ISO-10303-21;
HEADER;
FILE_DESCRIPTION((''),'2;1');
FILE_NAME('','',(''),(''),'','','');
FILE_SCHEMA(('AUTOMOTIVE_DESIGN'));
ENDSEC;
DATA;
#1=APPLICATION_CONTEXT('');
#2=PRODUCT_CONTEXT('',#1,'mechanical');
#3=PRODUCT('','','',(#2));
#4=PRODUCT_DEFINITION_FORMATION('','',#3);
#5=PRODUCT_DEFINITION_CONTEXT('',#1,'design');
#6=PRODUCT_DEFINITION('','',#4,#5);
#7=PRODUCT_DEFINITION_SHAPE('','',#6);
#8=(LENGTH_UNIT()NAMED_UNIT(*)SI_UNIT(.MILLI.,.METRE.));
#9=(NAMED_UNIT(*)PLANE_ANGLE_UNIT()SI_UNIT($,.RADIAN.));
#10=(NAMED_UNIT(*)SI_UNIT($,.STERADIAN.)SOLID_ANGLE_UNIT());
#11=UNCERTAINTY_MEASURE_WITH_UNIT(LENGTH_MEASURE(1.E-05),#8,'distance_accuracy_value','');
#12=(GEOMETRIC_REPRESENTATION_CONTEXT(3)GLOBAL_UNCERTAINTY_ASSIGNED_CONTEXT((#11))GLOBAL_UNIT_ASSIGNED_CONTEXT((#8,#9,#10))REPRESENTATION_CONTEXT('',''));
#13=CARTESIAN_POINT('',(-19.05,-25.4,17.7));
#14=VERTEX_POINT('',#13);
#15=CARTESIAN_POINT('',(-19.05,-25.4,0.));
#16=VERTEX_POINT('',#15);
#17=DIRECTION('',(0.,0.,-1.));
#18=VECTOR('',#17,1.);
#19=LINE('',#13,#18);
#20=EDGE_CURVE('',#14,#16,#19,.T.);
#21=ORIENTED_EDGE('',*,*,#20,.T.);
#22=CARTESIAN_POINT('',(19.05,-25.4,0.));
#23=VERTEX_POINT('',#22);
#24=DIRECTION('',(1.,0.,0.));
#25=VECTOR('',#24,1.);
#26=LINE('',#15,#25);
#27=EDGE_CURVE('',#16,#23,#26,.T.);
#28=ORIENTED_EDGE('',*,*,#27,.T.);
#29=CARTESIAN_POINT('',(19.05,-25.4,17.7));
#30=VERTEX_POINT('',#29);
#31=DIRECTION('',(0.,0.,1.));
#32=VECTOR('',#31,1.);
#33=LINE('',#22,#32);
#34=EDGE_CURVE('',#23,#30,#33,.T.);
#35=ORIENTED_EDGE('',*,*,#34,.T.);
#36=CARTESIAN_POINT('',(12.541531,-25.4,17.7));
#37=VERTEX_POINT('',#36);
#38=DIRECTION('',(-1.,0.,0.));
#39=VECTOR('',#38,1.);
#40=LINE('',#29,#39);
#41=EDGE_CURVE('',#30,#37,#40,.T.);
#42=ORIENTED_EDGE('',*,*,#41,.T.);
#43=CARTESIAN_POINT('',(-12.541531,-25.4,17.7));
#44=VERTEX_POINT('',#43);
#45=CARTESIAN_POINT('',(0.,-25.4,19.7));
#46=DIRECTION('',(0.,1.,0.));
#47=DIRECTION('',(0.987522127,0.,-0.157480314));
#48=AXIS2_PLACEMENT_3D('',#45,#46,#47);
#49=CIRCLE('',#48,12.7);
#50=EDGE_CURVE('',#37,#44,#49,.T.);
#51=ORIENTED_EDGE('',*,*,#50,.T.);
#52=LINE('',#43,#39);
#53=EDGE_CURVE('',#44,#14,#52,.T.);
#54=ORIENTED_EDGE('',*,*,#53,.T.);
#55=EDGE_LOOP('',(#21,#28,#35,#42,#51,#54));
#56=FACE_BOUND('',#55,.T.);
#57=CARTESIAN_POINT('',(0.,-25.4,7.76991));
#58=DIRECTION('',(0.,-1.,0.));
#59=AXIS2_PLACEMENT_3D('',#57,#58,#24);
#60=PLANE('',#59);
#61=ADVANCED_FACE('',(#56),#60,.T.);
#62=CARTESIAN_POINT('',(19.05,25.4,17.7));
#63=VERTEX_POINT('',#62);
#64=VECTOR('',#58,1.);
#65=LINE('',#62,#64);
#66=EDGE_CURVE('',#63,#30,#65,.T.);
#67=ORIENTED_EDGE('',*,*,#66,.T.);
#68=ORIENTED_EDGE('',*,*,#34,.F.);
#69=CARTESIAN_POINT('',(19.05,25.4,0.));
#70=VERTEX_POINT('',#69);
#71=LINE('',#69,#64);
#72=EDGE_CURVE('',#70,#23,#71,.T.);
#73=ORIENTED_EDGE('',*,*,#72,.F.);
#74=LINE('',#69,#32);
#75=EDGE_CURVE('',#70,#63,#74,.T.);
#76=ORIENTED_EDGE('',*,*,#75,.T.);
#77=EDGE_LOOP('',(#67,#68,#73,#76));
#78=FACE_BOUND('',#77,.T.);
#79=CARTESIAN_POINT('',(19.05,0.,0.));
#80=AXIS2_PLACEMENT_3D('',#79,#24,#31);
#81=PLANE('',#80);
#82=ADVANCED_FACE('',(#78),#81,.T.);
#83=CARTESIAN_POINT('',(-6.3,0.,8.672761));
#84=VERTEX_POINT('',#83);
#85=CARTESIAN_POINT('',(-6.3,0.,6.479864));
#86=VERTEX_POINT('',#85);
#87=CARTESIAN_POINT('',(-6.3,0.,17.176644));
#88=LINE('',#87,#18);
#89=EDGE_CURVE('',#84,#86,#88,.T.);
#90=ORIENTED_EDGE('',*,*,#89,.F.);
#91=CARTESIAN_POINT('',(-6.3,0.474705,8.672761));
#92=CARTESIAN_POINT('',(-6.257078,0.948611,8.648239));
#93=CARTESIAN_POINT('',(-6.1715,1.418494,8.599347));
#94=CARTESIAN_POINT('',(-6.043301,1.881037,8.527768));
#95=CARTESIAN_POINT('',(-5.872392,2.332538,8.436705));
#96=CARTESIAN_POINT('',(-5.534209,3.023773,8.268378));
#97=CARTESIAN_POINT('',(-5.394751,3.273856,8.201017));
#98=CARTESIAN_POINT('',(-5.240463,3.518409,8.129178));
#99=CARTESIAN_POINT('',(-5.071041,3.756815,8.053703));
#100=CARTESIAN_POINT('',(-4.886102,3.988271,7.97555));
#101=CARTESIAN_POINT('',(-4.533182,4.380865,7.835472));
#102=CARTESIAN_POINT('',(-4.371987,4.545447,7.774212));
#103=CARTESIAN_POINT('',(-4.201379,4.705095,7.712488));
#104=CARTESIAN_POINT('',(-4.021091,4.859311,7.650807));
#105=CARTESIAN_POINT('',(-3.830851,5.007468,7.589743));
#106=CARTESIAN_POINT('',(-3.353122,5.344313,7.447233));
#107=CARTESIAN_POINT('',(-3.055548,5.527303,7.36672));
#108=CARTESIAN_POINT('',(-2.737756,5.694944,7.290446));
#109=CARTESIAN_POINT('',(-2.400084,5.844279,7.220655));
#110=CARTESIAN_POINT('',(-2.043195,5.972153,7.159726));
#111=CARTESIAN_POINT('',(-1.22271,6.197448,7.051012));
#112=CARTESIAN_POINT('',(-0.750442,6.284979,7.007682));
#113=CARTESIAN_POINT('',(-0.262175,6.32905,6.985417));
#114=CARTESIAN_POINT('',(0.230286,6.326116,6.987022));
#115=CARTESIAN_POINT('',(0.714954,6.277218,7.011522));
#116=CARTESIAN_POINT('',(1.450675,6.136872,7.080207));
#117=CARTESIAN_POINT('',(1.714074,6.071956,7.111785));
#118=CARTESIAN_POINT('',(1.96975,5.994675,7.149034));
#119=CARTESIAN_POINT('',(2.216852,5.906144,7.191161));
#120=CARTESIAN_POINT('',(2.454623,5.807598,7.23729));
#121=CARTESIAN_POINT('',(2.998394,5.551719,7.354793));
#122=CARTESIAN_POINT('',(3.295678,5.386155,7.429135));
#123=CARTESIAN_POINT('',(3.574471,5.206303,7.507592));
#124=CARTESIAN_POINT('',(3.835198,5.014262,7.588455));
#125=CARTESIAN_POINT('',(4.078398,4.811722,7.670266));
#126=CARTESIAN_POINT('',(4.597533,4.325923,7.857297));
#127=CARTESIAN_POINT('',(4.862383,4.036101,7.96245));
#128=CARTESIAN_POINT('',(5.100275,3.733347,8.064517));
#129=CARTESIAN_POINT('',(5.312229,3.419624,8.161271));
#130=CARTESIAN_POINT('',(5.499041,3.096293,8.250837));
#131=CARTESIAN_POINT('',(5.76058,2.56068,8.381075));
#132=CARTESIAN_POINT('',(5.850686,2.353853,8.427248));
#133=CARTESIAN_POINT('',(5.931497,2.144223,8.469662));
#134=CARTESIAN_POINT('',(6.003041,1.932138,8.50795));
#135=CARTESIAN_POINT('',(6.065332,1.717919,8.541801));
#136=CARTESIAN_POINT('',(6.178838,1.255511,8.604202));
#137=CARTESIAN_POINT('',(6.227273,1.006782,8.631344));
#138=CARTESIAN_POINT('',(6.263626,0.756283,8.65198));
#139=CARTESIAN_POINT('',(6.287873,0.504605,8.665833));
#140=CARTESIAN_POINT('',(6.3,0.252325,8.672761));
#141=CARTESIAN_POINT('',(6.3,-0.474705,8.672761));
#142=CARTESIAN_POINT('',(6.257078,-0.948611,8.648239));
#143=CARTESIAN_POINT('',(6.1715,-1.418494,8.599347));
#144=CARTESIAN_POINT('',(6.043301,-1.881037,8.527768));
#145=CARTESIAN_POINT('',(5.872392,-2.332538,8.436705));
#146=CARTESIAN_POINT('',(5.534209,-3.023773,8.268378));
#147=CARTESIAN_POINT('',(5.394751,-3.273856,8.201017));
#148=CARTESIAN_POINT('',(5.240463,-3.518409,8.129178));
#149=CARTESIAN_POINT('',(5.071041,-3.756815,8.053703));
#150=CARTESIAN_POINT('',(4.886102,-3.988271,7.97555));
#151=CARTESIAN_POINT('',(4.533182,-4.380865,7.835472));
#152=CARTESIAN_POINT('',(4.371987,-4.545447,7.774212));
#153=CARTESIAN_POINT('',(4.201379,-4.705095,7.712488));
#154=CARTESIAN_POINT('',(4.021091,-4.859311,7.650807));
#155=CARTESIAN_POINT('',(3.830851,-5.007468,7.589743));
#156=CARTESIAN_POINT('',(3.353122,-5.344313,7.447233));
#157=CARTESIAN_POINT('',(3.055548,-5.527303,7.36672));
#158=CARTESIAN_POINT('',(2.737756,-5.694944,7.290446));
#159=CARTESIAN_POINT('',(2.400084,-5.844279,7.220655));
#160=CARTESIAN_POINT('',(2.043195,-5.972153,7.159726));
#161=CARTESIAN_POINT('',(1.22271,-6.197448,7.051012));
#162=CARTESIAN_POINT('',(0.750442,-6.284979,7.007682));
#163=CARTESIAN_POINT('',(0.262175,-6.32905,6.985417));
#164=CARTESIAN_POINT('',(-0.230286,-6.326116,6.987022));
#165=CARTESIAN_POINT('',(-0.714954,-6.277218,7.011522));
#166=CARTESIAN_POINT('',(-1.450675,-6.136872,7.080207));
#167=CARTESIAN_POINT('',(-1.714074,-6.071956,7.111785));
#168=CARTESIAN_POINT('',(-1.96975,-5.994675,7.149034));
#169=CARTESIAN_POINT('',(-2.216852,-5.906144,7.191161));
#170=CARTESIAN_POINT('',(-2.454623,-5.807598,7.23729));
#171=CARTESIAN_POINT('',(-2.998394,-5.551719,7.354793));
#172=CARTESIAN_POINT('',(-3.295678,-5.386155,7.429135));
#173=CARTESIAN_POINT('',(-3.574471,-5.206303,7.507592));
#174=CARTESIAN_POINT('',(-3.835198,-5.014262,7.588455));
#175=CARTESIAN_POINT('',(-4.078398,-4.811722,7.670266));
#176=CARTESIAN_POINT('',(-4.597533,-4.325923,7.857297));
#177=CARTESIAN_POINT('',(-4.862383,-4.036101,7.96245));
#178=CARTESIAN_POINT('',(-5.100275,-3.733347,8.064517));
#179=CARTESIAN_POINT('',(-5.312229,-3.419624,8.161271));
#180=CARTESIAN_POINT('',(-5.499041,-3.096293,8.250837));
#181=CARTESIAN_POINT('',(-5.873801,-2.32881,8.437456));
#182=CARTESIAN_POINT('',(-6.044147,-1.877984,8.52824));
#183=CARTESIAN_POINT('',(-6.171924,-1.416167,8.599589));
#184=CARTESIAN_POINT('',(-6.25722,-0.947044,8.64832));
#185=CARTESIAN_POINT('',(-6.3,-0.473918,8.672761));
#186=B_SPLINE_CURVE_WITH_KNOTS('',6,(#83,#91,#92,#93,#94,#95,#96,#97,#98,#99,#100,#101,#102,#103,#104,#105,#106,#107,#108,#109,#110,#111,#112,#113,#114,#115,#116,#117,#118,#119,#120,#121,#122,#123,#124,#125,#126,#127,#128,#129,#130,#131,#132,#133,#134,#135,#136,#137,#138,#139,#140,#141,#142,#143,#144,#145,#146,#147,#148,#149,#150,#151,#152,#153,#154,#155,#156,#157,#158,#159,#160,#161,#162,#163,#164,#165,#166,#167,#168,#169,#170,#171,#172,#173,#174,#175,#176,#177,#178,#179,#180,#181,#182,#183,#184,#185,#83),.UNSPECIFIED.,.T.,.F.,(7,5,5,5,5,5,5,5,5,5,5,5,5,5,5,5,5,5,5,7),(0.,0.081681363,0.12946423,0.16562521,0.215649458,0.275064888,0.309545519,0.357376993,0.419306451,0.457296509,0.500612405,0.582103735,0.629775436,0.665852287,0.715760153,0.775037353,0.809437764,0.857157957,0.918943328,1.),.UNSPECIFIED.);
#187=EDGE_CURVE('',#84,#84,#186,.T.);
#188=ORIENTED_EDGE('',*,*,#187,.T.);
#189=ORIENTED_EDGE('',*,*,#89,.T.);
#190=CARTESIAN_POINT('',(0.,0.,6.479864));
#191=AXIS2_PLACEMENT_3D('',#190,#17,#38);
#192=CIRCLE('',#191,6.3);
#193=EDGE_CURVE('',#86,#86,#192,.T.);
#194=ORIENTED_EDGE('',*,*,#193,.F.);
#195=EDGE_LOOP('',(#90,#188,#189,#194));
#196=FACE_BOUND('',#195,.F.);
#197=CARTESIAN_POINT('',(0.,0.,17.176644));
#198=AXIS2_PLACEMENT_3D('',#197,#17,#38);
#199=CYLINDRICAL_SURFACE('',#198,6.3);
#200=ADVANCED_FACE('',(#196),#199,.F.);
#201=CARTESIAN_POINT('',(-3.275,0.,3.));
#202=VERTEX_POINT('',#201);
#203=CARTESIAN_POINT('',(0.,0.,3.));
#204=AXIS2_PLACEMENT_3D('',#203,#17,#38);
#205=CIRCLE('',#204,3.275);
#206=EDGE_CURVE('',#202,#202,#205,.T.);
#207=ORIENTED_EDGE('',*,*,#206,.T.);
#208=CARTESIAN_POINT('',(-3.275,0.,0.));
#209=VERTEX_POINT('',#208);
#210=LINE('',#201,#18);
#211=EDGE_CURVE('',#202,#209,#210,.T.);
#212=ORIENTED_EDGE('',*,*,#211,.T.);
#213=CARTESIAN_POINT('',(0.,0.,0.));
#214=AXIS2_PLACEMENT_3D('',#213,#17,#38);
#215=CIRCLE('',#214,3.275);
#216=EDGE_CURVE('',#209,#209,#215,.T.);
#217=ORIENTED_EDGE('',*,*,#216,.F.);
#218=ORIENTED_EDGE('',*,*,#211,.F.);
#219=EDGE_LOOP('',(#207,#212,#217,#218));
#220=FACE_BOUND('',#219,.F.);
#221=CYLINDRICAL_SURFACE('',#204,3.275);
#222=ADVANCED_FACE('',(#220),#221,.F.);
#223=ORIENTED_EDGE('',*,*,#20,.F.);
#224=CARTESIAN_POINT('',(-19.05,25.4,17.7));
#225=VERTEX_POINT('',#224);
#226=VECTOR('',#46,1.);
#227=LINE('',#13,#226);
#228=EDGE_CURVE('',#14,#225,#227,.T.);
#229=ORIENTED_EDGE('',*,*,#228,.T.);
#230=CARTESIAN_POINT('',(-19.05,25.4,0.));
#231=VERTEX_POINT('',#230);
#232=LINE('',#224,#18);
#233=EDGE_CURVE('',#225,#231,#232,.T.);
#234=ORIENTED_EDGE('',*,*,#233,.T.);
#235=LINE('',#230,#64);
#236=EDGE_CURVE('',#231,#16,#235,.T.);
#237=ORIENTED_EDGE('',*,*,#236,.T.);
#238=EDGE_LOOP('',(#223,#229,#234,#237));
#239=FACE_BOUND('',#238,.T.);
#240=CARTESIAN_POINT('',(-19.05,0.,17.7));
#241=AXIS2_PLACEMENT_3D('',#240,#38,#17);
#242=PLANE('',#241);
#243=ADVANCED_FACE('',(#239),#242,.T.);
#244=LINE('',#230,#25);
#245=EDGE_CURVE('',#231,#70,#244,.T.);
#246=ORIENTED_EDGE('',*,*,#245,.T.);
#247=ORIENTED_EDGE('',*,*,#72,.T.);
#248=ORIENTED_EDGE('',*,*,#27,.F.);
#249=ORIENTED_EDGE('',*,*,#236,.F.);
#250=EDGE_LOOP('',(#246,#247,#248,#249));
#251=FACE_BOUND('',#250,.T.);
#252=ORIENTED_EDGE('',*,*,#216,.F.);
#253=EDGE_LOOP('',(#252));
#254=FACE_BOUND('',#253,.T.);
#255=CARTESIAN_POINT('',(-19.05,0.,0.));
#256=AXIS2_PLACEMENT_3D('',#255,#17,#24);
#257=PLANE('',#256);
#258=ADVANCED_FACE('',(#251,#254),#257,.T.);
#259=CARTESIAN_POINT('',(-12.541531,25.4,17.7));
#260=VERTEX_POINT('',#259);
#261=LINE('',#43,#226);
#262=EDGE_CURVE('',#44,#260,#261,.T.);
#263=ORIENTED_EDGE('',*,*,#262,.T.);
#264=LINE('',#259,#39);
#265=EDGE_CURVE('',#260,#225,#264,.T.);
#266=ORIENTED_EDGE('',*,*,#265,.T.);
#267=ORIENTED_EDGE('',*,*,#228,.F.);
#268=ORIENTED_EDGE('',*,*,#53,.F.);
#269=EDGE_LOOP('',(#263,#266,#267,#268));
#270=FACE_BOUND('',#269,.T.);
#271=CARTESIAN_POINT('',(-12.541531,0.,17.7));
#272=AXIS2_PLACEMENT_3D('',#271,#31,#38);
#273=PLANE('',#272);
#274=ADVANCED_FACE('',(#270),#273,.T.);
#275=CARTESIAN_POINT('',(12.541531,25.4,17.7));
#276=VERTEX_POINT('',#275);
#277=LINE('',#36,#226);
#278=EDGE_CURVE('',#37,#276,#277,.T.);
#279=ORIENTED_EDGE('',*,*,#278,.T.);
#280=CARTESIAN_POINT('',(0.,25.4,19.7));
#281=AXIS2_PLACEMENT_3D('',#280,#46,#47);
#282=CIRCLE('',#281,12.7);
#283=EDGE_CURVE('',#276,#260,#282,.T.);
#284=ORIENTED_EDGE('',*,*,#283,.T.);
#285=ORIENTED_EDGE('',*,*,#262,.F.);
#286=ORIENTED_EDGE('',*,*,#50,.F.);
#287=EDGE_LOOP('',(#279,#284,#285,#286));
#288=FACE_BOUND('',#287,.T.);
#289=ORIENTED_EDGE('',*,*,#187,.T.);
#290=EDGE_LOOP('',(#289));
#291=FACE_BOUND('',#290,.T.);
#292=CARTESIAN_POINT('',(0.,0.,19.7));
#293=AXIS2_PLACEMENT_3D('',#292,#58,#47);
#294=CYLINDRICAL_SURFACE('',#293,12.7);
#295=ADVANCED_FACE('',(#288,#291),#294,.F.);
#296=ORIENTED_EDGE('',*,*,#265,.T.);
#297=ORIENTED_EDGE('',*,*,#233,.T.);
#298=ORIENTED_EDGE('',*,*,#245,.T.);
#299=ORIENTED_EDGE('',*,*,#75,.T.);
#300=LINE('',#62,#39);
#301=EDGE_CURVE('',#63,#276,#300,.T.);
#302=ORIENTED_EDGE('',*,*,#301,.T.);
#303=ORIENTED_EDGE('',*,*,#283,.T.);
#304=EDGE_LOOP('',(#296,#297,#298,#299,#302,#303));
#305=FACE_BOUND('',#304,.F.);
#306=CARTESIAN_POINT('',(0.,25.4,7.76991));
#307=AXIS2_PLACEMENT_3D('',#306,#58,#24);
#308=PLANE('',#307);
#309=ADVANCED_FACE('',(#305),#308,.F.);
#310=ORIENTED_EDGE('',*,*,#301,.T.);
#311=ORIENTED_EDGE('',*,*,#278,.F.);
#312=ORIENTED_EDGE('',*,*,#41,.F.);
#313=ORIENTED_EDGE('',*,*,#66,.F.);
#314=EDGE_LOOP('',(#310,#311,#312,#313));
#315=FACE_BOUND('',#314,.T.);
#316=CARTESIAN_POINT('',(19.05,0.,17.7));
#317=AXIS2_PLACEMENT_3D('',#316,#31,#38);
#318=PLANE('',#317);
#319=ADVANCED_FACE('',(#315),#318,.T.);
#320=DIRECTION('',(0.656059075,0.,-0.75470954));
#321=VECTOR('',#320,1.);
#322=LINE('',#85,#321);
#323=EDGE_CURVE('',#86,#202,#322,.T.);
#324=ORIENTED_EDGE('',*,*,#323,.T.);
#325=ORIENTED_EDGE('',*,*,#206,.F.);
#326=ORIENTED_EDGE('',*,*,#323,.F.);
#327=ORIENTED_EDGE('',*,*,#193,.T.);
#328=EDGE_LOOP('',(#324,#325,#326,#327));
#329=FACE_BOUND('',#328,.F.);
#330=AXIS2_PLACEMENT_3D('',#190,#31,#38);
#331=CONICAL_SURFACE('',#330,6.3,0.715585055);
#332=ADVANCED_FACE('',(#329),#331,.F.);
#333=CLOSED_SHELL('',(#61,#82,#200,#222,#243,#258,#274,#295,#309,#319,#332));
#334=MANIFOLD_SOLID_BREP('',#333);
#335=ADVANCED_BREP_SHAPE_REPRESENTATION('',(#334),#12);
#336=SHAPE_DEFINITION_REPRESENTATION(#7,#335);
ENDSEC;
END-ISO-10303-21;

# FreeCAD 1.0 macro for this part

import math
import FreeCAD as App
import Part
import Sketcher

V = App.Vector
Q = App.Units.Quantity


def add_polygon(sketch, points):
    """Adds a closed chain of lines whose ends are joined by coincident constraints."""
    first, n = sketch.GeometryCount, len(points)
    for a, b in zip(points, points[1:] + points[:1]):
        sketch.addGeometry(Part.LineSegment(App.Vector(*a, 0), App.Vector(*b, 0)), False)
    for i in range(n):
        sketch.addConstraint(Sketcher.Constraint("Coincident", first + i, 2, first + (i + 1) % n, 1))

doc = App.newDocument("Part")
body = doc.addObject("PartDesign::Body", "Body")

# Sketch on XZ plane
sketch1 = body.newObject("Sketcher::SketchObject", "Sketch")
sketch1.AttachmentSupport = (doc.getObject("XZ_Plane"), [""])
sketch1.MapMode = "FlatFace"
sketch1.addGeometry([
    Part.LineSegment(V(-19, 18, 0), V(-19, 0, 0)),  # 0
    Part.LineSegment(V(-19, 0, 0), V(19, 0, 0)),  # 1
    Part.LineSegment(V(19, 0, 0), V(19, 18, 0)),  # 2
    Part.LineSegment(V(19, 18, 0), V(13, 18, 0)),  # 3
    Part.ArcOfCircle(Part.Circle(V(0, 20, 0), V(0, 0, 1), 13), math.radians(-171), math.radians(-9)),  # 4
    Part.LineSegment(V(-13, 18, 0), V(-19, 18, 0)),  # 5
], False)
sketch1.addConstraint([
    Sketcher.Constraint("Coincident", 0, 2, 1, 1),
    Sketcher.Constraint("Coincident", 1, 2, 2, 1),
    Sketcher.Constraint("Coincident", 2, 2, 3, 1),
    Sketcher.Constraint("Coincident", 3, 2, 4, 2),
    Sketcher.Constraint("Coincident", 4, 1, 5, 1),
    Sketcher.Constraint("Coincident", 5, 2, 0, 1),
    Sketcher.Constraint("Vertical", 0),
    Sketcher.Constraint("Horizontal", 1),
    Sketcher.Constraint("Vertical", 2),
    Sketcher.Constraint("Horizontal", 3),
    Sketcher.Constraint("Horizontal", 5),
    Sketcher.Constraint("Symmetric", 0, 2, 1, 2, -1, 1),
    Sketcher.Constraint("Symmetric", 3, 2, 4, 1, -2),
    Sketcher.Constraint("Radius", 4, Q("12.7 mm")),
    Sketcher.Constraint("DistanceX", 1, 1, 1, 2, Q("38.1 mm")),
    Sketcher.Constraint("DistanceY", 0, 2, 0, 1, Q("17.7 mm")),
    Sketcher.Constraint("DistanceY", 2, 2, 4, 3, Q("2 mm")),
])
pad1 = body.newObject("PartDesign::Pad", "Pad")
pad1.Profile = sketch1
pad1.Length = 50.8
pad1.Midplane = True

# Sketch on XZ plane
sketch2 = body.newObject("Sketcher::SketchObject", "Sketch001")
sketch2.AttachmentSupport = (doc.getObject("XZ_Plane"), [""])
sketch2.MapMode = "FlatFace"
add_polygon(sketch2, [(0, 17.2), (-6.3, 17.2), (-6.3, 6.5), (-3.3, 3), (-3.3, 0), (0, 0)])  # lines 0-5
sketch2.addConstraint([
    Sketcher.Constraint("Horizontal", 0),
    Sketcher.Constraint("Vertical", 1),
    Sketcher.Constraint("Vertical", 3),
    Sketcher.Constraint("Horizontal", 4),
    Sketcher.Constraint("Vertical", 5),
    Sketcher.Constraint("Coincident", 4, 2, -1, 1),
    Sketcher.Constraint("DistanceY", 3, 2, 3, 1, Q("3 mm")),
    Sketcher.Constraint("Angle", 2, Q("-48.999996 deg")),
    Sketcher.Constraint("DistanceX", 0, 2, 0, 1, Q("6.3 mm")),
    Sketcher.Constraint("DistanceX", 4, 1, 4, 2, Q("3.275 mm")),
    Sketcher.Constraint("DistanceY", 1, 2, 1, 1, Q("10.69678 mm")),
])
groove = body.newObject("PartDesign::Groove", "Groove")
groove.Profile = sketch2
groove.ReferenceAxis = (sketch2, ["V_Axis"])
groove.Angle = 360

doc.recompute()
